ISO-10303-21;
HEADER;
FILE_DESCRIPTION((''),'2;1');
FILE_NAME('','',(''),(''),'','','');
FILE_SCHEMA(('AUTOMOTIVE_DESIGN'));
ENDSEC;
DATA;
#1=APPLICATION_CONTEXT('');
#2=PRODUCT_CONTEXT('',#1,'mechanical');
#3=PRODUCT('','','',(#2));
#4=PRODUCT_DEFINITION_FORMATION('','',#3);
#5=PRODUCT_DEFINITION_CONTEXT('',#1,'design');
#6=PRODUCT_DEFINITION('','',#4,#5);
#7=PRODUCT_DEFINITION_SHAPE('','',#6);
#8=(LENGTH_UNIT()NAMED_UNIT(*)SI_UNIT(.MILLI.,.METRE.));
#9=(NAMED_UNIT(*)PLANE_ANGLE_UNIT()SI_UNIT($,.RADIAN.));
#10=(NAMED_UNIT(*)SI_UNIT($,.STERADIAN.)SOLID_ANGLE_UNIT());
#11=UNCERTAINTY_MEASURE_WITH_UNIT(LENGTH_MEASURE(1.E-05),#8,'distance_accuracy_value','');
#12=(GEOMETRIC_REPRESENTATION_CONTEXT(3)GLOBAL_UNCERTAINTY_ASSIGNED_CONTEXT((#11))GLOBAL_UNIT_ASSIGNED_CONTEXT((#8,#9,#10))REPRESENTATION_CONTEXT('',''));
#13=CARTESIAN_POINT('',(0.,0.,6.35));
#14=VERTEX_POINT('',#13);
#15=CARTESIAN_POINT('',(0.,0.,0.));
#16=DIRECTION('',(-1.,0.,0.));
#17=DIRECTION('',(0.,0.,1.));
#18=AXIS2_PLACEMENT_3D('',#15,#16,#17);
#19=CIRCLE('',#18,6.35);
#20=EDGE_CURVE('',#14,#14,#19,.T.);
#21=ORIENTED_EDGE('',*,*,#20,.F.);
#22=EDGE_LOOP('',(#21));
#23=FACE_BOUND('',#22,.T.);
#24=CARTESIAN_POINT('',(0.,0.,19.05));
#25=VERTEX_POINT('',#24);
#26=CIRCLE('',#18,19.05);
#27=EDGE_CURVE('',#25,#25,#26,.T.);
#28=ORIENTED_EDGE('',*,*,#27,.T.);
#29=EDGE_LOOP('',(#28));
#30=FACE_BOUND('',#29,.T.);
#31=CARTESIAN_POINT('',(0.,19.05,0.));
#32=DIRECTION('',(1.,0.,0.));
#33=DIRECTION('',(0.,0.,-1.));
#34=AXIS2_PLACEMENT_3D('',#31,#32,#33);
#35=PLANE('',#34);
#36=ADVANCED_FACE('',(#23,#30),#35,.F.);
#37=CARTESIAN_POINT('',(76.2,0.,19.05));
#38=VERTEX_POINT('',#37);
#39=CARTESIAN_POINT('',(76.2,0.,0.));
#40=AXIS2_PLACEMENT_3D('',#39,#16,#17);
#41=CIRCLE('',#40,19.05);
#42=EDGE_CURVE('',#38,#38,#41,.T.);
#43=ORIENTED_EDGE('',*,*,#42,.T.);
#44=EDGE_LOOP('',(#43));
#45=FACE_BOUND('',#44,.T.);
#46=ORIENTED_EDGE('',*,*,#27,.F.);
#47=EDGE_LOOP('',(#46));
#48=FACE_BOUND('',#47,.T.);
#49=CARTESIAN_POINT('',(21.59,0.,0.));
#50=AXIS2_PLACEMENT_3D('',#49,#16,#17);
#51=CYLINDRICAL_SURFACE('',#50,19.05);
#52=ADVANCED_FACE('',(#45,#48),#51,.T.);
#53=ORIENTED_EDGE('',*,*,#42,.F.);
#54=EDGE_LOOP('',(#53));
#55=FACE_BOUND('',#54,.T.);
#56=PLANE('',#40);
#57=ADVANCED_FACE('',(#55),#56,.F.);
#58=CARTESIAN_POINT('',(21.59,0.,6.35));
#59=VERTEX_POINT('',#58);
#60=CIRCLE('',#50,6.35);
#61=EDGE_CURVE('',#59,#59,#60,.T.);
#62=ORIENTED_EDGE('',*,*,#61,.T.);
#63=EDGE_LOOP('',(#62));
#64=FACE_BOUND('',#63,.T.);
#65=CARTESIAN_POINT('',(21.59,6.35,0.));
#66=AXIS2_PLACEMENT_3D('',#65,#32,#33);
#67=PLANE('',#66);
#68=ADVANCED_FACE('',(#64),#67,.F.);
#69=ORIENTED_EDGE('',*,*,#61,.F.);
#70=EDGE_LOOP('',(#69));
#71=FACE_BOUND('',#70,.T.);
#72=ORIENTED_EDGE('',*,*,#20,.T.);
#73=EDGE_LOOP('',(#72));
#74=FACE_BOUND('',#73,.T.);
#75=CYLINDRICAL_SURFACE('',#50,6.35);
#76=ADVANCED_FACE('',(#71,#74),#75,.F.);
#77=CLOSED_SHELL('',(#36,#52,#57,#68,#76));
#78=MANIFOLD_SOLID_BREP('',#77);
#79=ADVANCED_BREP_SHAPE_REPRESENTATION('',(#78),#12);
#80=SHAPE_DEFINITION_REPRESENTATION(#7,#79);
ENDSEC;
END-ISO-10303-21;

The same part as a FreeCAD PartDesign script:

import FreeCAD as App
import Part
import Sketcher
Q = App.Units.Quantity


def add_polygon(sketch, points):
    """Adds a closed chain of lines whose ends are joined by coincident constraints."""
    first, n = sketch.GeometryCount, len(points)
    for a, b in zip(points, points[1:] + points[:1]):
        sketch.addGeometry(Part.LineSegment(App.Vector(*a, 0), App.Vector(*b, 0)), False)
    for i in range(n):
        sketch.addConstraint(Sketcher.Constraint("Coincident", first + i, 2, first + (i + 1) % n, 1))

doc = App.newDocument("Part")
body = doc.addObject("PartDesign::Body", "Body")

sketch1 = doc.addObject("Sketcher::SketchObject", "Sketch")
body.addObject(sketch1)
sketch1.AttachmentSupport = (doc.XY_Plane, [""])
sketch1.MapMode = "FlatFace"
add_polygon(sketch1, [(0, 6), (22, 6), (22, 0), (76, 0), (76, 19), (0, 19)])
sketch1.addConstraint(Sketcher.Constraint("Horizontal", 0))
sketch1.addConstraint(Sketcher.Constraint("Vertical", 1))
sketch1.addConstraint(Sketcher.Constraint("Horizontal", 2))
sketch1.addConstraint(Sketcher.Constraint("Vertical", 3))
sketch1.addConstraint(Sketcher.Constraint("Horizontal", 4))
sketch1.addConstraint(Sketcher.Constraint("Vertical", 5))
sketch1.addConstraint(Sketcher.Constraint("PointOnObject", 1, 2, -1))
sketch1.addConstraint(Sketcher.Constraint("PointOnObject", 4, 2, -2))
sketch1.addConstraint(Sketcher.Constraint("DistanceX", 4, 2, 4, 1, Q("3 in")))
sketch1.addConstraint(Sketcher.Constraint("DistanceY", 5, 2, 5, 1, Q("0.5 in")))
sketch1.addConstraint(Sketcher.Constraint("DistanceX", 0, 1, 0, 2, Q("0.85 in")))
sketch1.addConstraint(Sketcher.Constraint("DistanceY", 1, 2, 1, 1, Q("0.25 in")))
revolution = doc.addObject("PartDesign::Revolution", "Revolution")
body.addObject(revolution)
revolution.Profile = sketch1
revolution.ReferenceAxis = (sketch1, ["H_Axis"])
revolution.Angle = 360

doc.recompute()
